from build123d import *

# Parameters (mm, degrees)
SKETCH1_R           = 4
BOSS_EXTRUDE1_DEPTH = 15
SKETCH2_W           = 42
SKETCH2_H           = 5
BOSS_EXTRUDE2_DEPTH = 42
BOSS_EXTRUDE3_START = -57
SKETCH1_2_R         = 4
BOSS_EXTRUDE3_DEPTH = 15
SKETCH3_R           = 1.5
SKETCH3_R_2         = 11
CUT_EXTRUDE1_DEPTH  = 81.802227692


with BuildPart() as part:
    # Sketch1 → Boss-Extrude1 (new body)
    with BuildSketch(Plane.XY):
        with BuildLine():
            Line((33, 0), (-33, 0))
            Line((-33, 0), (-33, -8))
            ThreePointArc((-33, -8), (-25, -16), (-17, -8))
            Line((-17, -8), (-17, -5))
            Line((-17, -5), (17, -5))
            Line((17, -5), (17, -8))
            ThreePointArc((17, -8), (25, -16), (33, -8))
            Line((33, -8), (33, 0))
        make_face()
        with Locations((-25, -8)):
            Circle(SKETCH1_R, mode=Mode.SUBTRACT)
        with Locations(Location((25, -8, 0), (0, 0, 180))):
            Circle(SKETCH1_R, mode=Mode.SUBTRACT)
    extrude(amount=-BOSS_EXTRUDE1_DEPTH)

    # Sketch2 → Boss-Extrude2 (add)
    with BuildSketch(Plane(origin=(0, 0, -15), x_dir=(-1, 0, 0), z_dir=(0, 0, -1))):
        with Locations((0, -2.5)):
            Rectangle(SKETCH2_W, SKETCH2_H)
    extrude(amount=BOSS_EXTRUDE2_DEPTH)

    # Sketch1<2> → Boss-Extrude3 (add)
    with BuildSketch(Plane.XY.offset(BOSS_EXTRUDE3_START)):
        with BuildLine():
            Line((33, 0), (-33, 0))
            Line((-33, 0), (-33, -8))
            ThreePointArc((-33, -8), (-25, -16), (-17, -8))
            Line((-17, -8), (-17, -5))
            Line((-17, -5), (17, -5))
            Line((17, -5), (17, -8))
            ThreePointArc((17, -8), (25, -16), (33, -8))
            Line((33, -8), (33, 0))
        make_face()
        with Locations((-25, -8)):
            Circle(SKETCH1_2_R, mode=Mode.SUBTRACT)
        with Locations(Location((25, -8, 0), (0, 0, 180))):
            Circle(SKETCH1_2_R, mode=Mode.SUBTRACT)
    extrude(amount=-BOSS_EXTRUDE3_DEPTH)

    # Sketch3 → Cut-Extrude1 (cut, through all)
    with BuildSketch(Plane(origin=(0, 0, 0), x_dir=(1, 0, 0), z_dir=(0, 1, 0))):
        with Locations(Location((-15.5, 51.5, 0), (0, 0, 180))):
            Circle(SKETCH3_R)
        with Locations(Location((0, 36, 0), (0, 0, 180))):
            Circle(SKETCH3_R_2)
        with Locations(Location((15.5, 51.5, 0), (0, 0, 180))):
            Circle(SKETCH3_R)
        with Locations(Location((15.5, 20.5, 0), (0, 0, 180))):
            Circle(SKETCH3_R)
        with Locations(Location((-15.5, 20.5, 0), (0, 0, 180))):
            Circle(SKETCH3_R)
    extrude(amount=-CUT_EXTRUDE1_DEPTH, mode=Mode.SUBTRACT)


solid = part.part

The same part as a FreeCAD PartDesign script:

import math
import FreeCAD as App
import Part
import Sketcher
from FreeCAD import Vector


def add_polygon(sketch, points):
    """Adds a closed chain of lines whose ends are joined by coincident constraints."""
    first, n = sketch.GeometryCount, len(points)
    for a, b in zip(points, points[1:] + points[:1]):
        sketch.addGeometry(Part.LineSegment(App.Vector(*a, 0), App.Vector(*b, 0)), False)
    for i in range(n):
        sketch.addConstraint(Sketcher.Constraint("Coincident", first + i, 2, first + (i + 1) % n, 1))

doc = App.newDocument("Part")
body = doc.addObject("PartDesign::Body", "Body")

# Sketch on XY plane
sketch1 = doc.addObject("Sketcher::SketchObject", "Sketch")
body.addObject(sketch1)
sketch1.AttachmentSupport = (doc.XY_Plane, [""])
sketch1.MapMode = "FlatFace"
sketch1.addGeometry(Part.LineSegment(Vector(33, 0, 0), Vector(-33, 0, 0)), False)
sketch1.addGeometry(Part.LineSegment(Vector(-33, 0, 0), Vector(-33, -8, 0)), False)
sketch1.addGeometry(Part.ArcOfCircle(Part.Circle(Vector(-25, -8, 0), Vector(0, 0, 1), 8), math.radians(180), math.radians(360)), False)
sketch1.addGeometry(Part.LineSegment(Vector(-17, -8, 0), Vector(-17, -5, 0)), False)
sketch1.addGeometry(Part.LineSegment(Vector(-17, -5, 0), Vector(17, -5, 0)), False)
sketch1.addGeometry(Part.LineSegment(Vector(17, -5, 0), Vector(17, -8, 0)), False)
sketch1.addGeometry(Part.ArcOfCircle(Part.Circle(Vector(25, -8, 0), Vector(0, 0, 1), 8), math.radians(180), math.radians(360)), False)
sketch1.addGeometry(Part.LineSegment(Vector(33, -8, 0), Vector(33, 0, 0)), False)
sketch1.addGeometry(Part.Circle(Vector(-25, -8, 0), Vector(0, 0, 1), 4), False)
sketch1.addGeometry(Part.Circle(Vector(25, -8, 0), Vector(0, 0, 1), 4), False)
sketch1.addConstraint(Sketcher.Constraint("Coincident", 0, 2, 1, 1))
sketch1.addConstraint(Sketcher.Constraint("Tangent", 1, 2, 2, 1))
sketch1.addConstraint(Sketcher.Constraint("Tangent", 2, 2, 3, 1))
sketch1.addConstraint(Sketcher.Constraint("Coincident", 3, 2, 4, 1))
sketch1.addConstraint(Sketcher.Constraint("Coincident", 4, 2, 5, 1))
sketch1.addConstraint(Sketcher.Constraint("Tangent", 5, 2, 6, 1))
sketch1.addConstraint(Sketcher.Constraint("Tangent", 6, 2, 7, 1))
sketch1.addConstraint(Sketcher.Constraint("Coincident", 7, 2, 0, 1))
sketch1.addConstraint(Sketcher.Constraint("Horizontal", 0))
sketch1.addConstraint(Sketcher.Constraint("Vertical", 1))
sketch1.addConstraint(Sketcher.Constraint("Vertical", 3))
sketch1.addConstraint(Sketcher.Constraint("Horizontal", 4))
sketch1.addConstraint(Sketcher.Constraint("Vertical", 5))
sketch1.addConstraint(Sketcher.Constraint("Vertical", 7))
sketch1.addConstraint(Sketcher.Constraint("Coincident", 8, 3, 2, 3))
sketch1.addConstraint(Sketcher.Constraint("Coincident", 9, 3, 6, 3))
sketch1.addConstraint(Sketcher.Constraint("Equal", 2, 6))
sketch1.addConstraint(Sketcher.Constraint("Equal", 8, 9))
sketch1.addConstraint(Sketcher.Constraint("Symmetric", 0, 2, 7, 2, -1, 1))
sketch1.addConstraint(Sketcher.Constraint("Horizontal", 2, 3, 6, 3))
sketch1.addConstraint(Sketcher.Constraint("Diameter", 8, 8.0))
sketch1.addConstraint(Sketcher.Constraint("Radius", 2, 8.0))
sketch1.addConstraint(Sketcher.Constraint("DistanceX", 0, 2, 0, 1, 66.0))
sketch1.addConstraint(Sketcher.Constraint("DistanceY", 1, 2, 1, 1, 8.0))
sketch1.addConstraint(Sketcher.Constraint("DistanceY", 3, 1, 3, 2, 3.0))
pad1 = doc.addObject("PartDesign::Pad", "Pad")
body.addObject(pad1)
pad1.Profile = sketch1
pad1.Length = 15
pad1.Reversed = True

# Sketch on XY plane
sketch2 = doc.addObject("Sketcher::SketchObject", "Sketch001")
body.addObject(sketch2)
sketch2.AttachmentSupport = (doc.XY_Plane, [""])
sketch2.MapMode = "FlatFace"
sketch2.AttachmentOffset = App.Placement(Vector(0, 0, -15), App.Rotation())
add_polygon(sketch2, [(21, 0), (21, -5), (-21, -5), (-21, 0)])  # lines 0-3
sketch2.addConstraint(Sketcher.Constraint("Vertical", 0))
sketch2.addConstraint(Sketcher.Constraint("Horizontal", 1))
sketch2.addConstraint(Sketcher.Constraint("Vertical", 2))
sketch2.addConstraint(Sketcher.Constraint("Horizontal", 3))
sketch2.addConstraint(Sketcher.Constraint("Symmetric", 2, 2, 3, 2, -1, 1))
sketch2.addConstraint(Sketcher.Constraint("DistanceX", 1, 2, 1, 1, 42.0))
sketch2.addConstraint(Sketcher.Constraint("DistanceY", 0, 2, 0, 1, 5.0))
pad2 = doc.addObject("PartDesign::Pad", "Pad001")
body.addObject(pad2)
pad2.Profile = sketch2
pad2.Length = 42
pad2.Reversed = True

# Sketch on XY plane
sketch3 = doc.addObject("Sketcher::SketchObject", "Sketch002")
body.addObject(sketch3)
sketch3.AttachmentSupport = (doc.XY_Plane, [""])
sketch3.MapMode = "FlatFace"
sketch3.AttachmentOffset = App.Placement(Vector(0, 0, -57), App.Rotation())
sketch3.addGeometry(Part.LineSegment(Vector(33, 0, 0), Vector(-33, 0, 0)), False)
sketch3.addGeometry(Part.LineSegment(Vector(-33, 0, 0), Vector(-33, -8, 0)), False)
sketch3.addGeometry(Part.ArcOfCircle(Part.Circle(Vector(-25, -8, 0), Vector(0, 0, 1), 8), math.radians(180), math.radians(360)), False)
sketch3.addGeometry(Part.LineSegment(Vector(-17, -8, 0), Vector(-17, -5, 0)), False)
sketch3.addGeometry(Part.LineSegment(Vector(-17, -5, 0), Vector(17, -5, 0)), False)
sketch3.addGeometry(Part.LineSegment(Vector(17, -5, 0), Vector(17, -8, 0)), False)
sketch3.addGeometry(Part.ArcOfCircle(Part.Circle(Vector(25, -8, 0), Vector(0, 0, 1), 8), math.radians(180), math.radians(360)), False)
sketch3.addGeometry(Part.LineSegment(Vector(33, -8, 0), Vector(33, 0, 0)), False)
sketch3.addGeometry(Part.Circle(Vector(-25, -8, 0), Vector(0, 0, 1), 4), False)
sketch3.addGeometry(Part.Circle(Vector(25, -8, 0), Vector(0, 0, 1), 4), False)
sketch3.addConstraint(Sketcher.Constraint("Coincident", 0, 2, 1, 1))
sketch3.addConstraint(Sketcher.Constraint("Tangent", 1, 2, 2, 1))
sketch3.addConstraint(Sketcher.Constraint("Tangent", 2, 2, 3, 1))
sketch3.addConstraint(Sketcher.Constraint("Coincident", 3, 2, 4, 1))
sketch3.addConstraint(Sketcher.Constraint("Coincident", 4, 2, 5, 1))
sketch3.addConstraint(Sketcher.Constraint("Tangent", 5, 2, 6, 1))
sketch3.addConstraint(Sketcher.Constraint("Tangent", 6, 2, 7, 1))
sketch3.addConstraint(Sketcher.Constraint("Coincident", 7, 2, 0, 1))
sketch3.addConstraint(Sketcher.Constraint("Horizontal", 0))
sketch3.addConstraint(Sketcher.Constraint("Vertical", 1))
sketch3.addConstraint(Sketcher.Constraint("Vertical", 3))
sketch3.addConstraint(Sketcher.Constraint("Horizontal", 4))
sketch3.addConstraint(Sketcher.Constraint("Vertical", 5))
sketch3.addConstraint(Sketcher.Constraint("Vertical", 7))
sketch3.addConstraint(Sketcher.Constraint("Coincident", 8, 3, 2, 3))
sketch3.addConstraint(Sketcher.Constraint("Coincident", 9, 3, 6, 3))
sketch3.addConstraint(Sketcher.Constraint("Equal", 2, 6))
sketch3.addConstraint(Sketcher.Constraint("Equal", 8, 9))
sketch3.addConstraint(Sketcher.Constraint("Symmetric", 0, 2, 7, 2, -1, 1))
sketch3.addConstraint(Sketcher.Constraint("Horizontal", 2, 3, 6, 3))
sketch3.addConstraint(Sketcher.Constraint("Diameter", 8, 8.0))
sketch3.addConstraint(Sketcher.Constraint("Radius", 2, 8.0))
sketch3.addConstraint(Sketcher.Constraint("DistanceX", 0, 2, 0, 1, 66.0))
sketch3.addConstraint(Sketcher.Constraint("DistanceY", 1, 2, 1, 1, 8.0))
sketch3.addConstraint(Sketcher.Constraint("DistanceY", 3, 1, 3, 2, 3.0))
pad3 = doc.addObject("PartDesign::Pad", "Pad002")
body.addObject(pad3)
pad3.Profile = sketch3
pad3.Length = 15
pad3.Reversed = True

# Sketch on XZ plane
sketch4 = doc.addObject("Sketcher::SketchObject", "Sketch003")
body.addObject(sketch4)
sketch4.AttachmentSupport = (doc.XZ_Plane, [""])
sketch4.MapMode = "FlatFace"
sketch4.addGeometry(Part.Circle(Vector(-15.5, -51.5, 0), Vector(0, 0, 1), 1.5), False)
sketch4.addGeometry(Part.Circle(Vector(0, -36, 0), Vector(0, 0, 1), 11), False)
sketch4.addGeometry(Part.Circle(Vector(15.5, -51.5, 0), Vector(0, 0, 1), 1.5), False)
sketch4.addGeometry(Part.Circle(Vector(15.5, -20.5, 0), Vector(0, 0, 1), 1.5), False)
sketch4.addGeometry(Part.Circle(Vector(-15.5, -20.5, 0), Vector(0, 0, 1), 1.5), False)
sketch4.addConstraint(Sketcher.Constraint("Equal", 0, 2))
sketch4.addConstraint(Sketcher.Constraint("Equal", 2, 3))
sketch4.addConstraint(Sketcher.Constraint("Equal", 3, 4))
sketch4.addConstraint(Sketcher.Constraint("Symmetric", 0, 3, 2, 3, -2))
sketch4.addConstraint(Sketcher.Constraint("Symmetric", 3, 3, 4, 3, -2))
sketch4.addConstraint(Sketcher.Constraint("PointOnObject", 1, 3, -2))
sketch4.addConstraint(Sketcher.Constraint("Vertical", 2, 3, 3, 3))
sketch4.addConstraint(Sketcher.Constraint("Diameter", 0, 3.0))
sketch4.addConstraint(Sketcher.Constraint("Diameter", 1, 22.0))
sketch4.addConstraint(Sketcher.Constraint("DistanceY", 1, 3, -1, 1, 36.0))
sketch4.addConstraint(Sketcher.Constraint("DistanceX", 0, 3, 2, 3, 31.0))
sketch4.addConstraint(Sketcher.Constraint("DistanceY", 2, 3, 3, 3, 31.0))
sketch4.addConstraint(Sketcher.Constraint("DistanceY", 0, 3, -1, 1, 51.5))
pocket1 = doc.addObject("PartDesign::Pocket", "Pocket")
body.addObject(pocket1)
pocket1.Profile = sketch4
pocket1.Type = "ThroughAll"
pocket1.Reversed = True

doc.recompute()
